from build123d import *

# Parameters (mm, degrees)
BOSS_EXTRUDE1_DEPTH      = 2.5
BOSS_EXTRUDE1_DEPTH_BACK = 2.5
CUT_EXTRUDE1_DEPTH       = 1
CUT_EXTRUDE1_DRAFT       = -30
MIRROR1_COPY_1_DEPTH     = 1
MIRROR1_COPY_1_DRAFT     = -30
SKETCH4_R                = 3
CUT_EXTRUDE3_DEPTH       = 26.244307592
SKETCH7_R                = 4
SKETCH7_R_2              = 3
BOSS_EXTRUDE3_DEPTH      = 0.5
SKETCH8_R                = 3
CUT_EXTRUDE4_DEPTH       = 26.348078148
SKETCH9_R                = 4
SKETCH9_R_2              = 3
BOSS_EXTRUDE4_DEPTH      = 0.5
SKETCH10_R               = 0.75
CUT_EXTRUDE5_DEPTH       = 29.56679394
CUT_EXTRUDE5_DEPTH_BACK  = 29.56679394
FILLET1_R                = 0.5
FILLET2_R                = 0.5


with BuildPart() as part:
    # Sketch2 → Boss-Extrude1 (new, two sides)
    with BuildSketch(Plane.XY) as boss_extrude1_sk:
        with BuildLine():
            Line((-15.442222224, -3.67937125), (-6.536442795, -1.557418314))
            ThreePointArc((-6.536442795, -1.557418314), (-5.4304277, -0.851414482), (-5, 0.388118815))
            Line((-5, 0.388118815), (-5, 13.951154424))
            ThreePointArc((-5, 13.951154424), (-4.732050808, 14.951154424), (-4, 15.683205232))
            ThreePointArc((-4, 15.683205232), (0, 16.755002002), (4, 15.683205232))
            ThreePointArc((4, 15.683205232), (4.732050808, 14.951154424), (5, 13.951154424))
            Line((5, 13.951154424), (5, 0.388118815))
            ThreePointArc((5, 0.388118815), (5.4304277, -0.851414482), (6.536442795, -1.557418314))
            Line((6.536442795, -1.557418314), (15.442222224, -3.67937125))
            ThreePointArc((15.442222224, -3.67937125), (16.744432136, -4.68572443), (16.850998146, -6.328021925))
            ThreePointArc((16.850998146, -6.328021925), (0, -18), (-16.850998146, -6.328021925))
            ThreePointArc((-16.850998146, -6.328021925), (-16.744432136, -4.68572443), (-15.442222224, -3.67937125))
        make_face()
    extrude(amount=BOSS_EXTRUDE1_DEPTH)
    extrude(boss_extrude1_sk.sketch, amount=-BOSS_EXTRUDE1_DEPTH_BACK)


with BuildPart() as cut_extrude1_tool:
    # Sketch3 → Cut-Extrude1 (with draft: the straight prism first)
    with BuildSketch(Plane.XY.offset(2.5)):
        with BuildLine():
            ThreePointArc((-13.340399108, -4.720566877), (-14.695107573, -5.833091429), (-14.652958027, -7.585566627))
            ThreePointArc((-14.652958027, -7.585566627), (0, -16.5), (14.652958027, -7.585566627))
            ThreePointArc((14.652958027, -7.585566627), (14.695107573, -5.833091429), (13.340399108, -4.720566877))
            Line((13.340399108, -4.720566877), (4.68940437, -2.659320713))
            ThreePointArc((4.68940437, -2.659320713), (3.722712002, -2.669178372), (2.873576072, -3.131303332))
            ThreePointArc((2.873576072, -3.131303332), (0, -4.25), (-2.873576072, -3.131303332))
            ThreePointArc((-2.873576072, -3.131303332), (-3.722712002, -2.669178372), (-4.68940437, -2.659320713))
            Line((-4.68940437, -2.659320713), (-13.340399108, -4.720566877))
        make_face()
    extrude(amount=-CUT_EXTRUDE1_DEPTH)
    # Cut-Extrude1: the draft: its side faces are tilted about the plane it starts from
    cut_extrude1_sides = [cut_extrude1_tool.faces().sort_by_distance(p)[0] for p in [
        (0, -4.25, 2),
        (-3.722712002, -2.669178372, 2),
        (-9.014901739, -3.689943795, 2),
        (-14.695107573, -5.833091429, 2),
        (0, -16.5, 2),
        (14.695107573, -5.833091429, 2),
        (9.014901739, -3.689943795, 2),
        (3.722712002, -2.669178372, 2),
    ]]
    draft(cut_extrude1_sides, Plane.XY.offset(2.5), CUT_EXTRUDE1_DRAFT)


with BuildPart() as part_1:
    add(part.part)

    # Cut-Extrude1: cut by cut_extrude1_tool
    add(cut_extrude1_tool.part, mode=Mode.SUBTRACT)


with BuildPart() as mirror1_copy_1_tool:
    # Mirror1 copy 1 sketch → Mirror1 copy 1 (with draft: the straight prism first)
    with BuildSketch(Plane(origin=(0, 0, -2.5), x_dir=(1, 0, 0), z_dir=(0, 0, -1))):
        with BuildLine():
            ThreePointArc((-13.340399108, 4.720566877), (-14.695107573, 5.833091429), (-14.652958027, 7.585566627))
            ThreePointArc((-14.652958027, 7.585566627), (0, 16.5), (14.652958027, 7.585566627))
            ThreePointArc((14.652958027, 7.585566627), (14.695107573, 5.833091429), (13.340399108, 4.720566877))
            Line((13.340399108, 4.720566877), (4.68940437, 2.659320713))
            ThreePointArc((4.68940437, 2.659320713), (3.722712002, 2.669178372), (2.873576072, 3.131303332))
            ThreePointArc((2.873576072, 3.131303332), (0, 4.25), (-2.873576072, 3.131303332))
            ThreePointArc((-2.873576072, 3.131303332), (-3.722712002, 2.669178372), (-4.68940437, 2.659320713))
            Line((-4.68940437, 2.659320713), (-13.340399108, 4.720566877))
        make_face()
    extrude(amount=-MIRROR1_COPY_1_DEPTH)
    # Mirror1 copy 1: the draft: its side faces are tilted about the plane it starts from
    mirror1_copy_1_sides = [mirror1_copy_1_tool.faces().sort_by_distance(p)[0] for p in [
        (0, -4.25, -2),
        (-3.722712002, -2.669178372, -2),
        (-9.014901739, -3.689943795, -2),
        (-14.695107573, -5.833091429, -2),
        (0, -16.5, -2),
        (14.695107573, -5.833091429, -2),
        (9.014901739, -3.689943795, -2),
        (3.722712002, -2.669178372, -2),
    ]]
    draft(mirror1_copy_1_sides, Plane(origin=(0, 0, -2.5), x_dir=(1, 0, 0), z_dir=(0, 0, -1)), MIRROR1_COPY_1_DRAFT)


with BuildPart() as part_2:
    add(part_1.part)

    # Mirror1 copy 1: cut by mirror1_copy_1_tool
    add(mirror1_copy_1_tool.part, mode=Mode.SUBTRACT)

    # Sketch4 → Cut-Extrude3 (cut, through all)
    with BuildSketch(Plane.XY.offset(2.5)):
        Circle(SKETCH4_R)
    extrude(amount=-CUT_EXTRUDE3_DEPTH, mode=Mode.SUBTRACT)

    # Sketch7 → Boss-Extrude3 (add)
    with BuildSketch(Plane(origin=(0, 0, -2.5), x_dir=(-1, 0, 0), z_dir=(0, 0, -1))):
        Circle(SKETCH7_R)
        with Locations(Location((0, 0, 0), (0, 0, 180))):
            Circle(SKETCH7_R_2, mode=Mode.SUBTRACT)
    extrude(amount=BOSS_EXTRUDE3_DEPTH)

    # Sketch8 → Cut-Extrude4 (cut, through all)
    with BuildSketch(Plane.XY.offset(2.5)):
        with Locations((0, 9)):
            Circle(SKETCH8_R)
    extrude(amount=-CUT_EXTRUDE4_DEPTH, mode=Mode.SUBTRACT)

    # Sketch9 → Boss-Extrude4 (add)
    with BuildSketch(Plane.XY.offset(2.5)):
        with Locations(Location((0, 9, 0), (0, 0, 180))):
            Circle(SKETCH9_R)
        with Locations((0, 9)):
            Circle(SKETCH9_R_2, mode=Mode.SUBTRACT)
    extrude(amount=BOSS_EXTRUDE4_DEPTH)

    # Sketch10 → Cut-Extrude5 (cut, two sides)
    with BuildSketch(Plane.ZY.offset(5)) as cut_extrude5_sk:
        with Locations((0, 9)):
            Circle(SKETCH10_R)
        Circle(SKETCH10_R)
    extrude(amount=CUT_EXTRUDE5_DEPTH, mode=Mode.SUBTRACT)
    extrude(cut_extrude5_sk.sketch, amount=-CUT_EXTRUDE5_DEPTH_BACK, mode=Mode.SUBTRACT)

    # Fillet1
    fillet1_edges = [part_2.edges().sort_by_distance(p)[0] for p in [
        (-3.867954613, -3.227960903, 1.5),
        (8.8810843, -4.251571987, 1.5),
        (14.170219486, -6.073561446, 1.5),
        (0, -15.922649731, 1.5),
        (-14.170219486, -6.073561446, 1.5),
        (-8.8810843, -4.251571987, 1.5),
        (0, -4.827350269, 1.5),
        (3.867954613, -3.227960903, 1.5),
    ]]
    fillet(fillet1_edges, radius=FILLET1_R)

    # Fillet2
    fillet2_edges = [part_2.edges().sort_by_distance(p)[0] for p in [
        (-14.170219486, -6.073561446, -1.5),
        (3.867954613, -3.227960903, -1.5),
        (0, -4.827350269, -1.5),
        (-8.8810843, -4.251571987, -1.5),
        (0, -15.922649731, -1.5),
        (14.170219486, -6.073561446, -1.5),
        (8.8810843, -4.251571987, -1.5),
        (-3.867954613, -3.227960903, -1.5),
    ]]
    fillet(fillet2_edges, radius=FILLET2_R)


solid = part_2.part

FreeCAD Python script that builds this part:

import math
import FreeCAD as App
import Part
import Sketcher
from FreeCAD import Vector
Q = App.Units.Quantity


def edges_at(feature, points):
    """Names of the edges that pass closest to the given points."""
    edges = feature.Shape.Edges
    near = lambda p: min(range(len(edges)), key=lambda i: edges[i].distToShape(Part.Vertex(*p))[0])
    return sorted({f"Edge{near(p) + 1}" for p in points})


def faces_at(feature, points):
    """Names of the faces that lie closest to the given points."""
    faces = feature.Shape.Faces
    near = lambda p: min(range(len(faces)), key=lambda i: faces[i].distToShape(Part.Vertex(*p))[0])
    return sorted({f"Face{near(p) + 1}" for p in points})

doc = App.newDocument("Part")
body = doc.addObject("PartDesign::Body", "Body")

# Sketch on XY plane
sketch1 = body.newObject("Sketcher::SketchObject", "Sketch")
sketch1.AttachmentSupport = (doc.getObject("XY_Plane"), [""])
sketch1.MapMode = "FlatFace"
sketch1.addGeometry(Part.LineSegment(Vector(-6.5, -1.6, 0), Vector(-15.4, -3.7, 0)), False)
sketch1.addGeometry(Part.ArcOfCircle(Part.Circle(Vector(-15, -5.6, 0), Vector(0, 0, 1), 2), math.radians(103), math.radians(201)), False)
sketch1.addGeometry(Part.ArcOfCircle(Part.Circle(Vector(0, 0, 0), Vector(0, 0, 1), 18), math.radians(-159), math.radians(-21)), False)
sketch1.addGeometry(Part.ArcOfCircle(Part.Circle(Vector(15, -5.6, 0), Vector(0, 0, 1), 2), math.radians(-21), math.radians(77)), False)
sketch1.addGeometry(Part.LineSegment(Vector(15.4, -3.7, 0), Vector(6.5, -1.6, 0)), False)
sketch1.addGeometry(Part.ArcOfCircle(Part.Circle(Vector(7, 0.4, 0), Vector(0, 0, 1), 2), math.radians(-180), math.radians(-103)), False)
sketch1.addGeometry(Part.LineSegment(Vector(5, 0.4, 0), Vector(5, 14, 0)), False)
sketch1.addGeometry(Part.ArcOfCircle(Part.Circle(Vector(3, 14, 0), Vector(0, 0, 1), 2), math.radians(0), math.radians(60)), False)
sketch1.addGeometry(Part.ArcOfCircle(Part.Circle(Vector(0, 8.8, 0), Vector(0, 0, 1), 8), math.radians(60), math.radians(120)), False)
sketch1.addGeometry(Part.ArcOfCircle(Part.Circle(Vector(-3, 14, 0), Vector(0, 0, 1), 2), math.radians(120), math.radians(180)), False)
sketch1.addGeometry(Part.LineSegment(Vector(-5, 14, 0), Vector(-5, 0.4, 0)), False)
sketch1.addGeometry(Part.ArcOfCircle(Part.Circle(Vector(-7, 0.4, 0), Vector(0, 0, 1), 2), math.radians(-77), math.radians(0)), False)
sketch1.addConstraint(Sketcher.Constraint("Tangent", 0, 2, 1, 1))
sketch1.addConstraint(Sketcher.Constraint("Tangent", 1, 2, 2, 1))
sketch1.addConstraint(Sketcher.Constraint("Tangent", 2, 2, 3, 1))
sketch1.addConstraint(Sketcher.Constraint("Tangent", 3, 2, 4, 1))
sketch1.addConstraint(Sketcher.Constraint("Tangent", 4, 2, 5, 2))
sketch1.addConstraint(Sketcher.Constraint("Tangent", 5, 1, 6, 1))
sketch1.addConstraint(Sketcher.Constraint("Tangent", 6, 2, 7, 1))
sketch1.addConstraint(Sketcher.Constraint("Tangent", 7, 2, 8, 1))
sketch1.addConstraint(Sketcher.Constraint("Tangent", 8, 2, 9, 1))
sketch1.addConstraint(Sketcher.Constraint("Tangent", 9, 2, 10, 1))
sketch1.addConstraint(Sketcher.Constraint("Tangent", 10, 2, 11, 2))
sketch1.addConstraint(Sketcher.Constraint("Tangent", 11, 1, 0, 1))
sketch1.addConstraint(Sketcher.Constraint("Vertical", 6))
sketch1.addConstraint(Sketcher.Constraint("Vertical", 10))
sketch1.addConstraint(Sketcher.Constraint("Coincident", 2, 3, -1, 1))
sketch1.addConstraint(Sketcher.Constraint("Equal", 1, 3))
sketch1.addConstraint(Sketcher.Constraint("Equal", 3, 5))
sketch1.addConstraint(Sketcher.Constraint("Equal", 5, 7))
sketch1.addConstraint(Sketcher.Constraint("Equal", 7, 9))
sketch1.addConstraint(Sketcher.Constraint("Equal", 9, 11))
sketch1.addConstraint(Sketcher.Constraint("Symmetric", 7, 3, 9, 3, -2))
sketch1.addConstraint(Sketcher.Constraint("Symmetric", 0, 2, 3, 2, -2))
sketch1.addConstraint(Sketcher.Constraint("Radius", 1, Q("2 mm")))
sketch1.addConstraint(Sketcher.Constraint("Radius", 2, Q("18 mm")))
sketch1.addConstraint(Sketcher.Constraint("Radius", 8, Q("8 mm")))
sketch1.addConstraint(Sketcher.Constraint("DistanceX", -1, 1, 5, 3, Q("7 mm")))
sketch1.addConstraint(Sketcher.Constraint("DistanceX", 1, 2, -1, 1, Q("16.850998 mm")))
sketch1.addConstraint(Sketcher.Constraint("DistanceY", 6, 1, 6, 2, Q("13.563036 mm")))
sketch1.addConstraint(Sketcher.Constraint("DistanceY", -1, 1, 5, 3, Q("0.388119 mm")))
pad1 = body.newObject("PartDesign::Pad", "Pad")
pad1.Profile = sketch1
pad1.Type = "TwoLengths"
pad1.Length = 2.5
pad1.Length2 = 2.5
body2 = doc.addObject("PartDesign::Body", "Body001")

# Sketch on XY plane
sketch2 = body2.newObject("Sketcher::SketchObject", "Sketch001")
sketch2.AttachmentSupport = (doc.getObject("XY_Plane001"), [""])
sketch2.MapMode = "FlatFace"
sketch2.AttachmentOffset = App.Placement(Vector(0, 0, 2.5), App.Rotation())
sketch2.addGeometry(Part.ArcOfCircle(Part.Circle(Vector(-12.876842, -6.666104, 0), Vector(0, 0, 1), 2), math.radians(103.401808), math.radians(207.369771)), False)
sketch2.addGeometry(Part.ArcOfCircle(Part.Circle(Vector(0, 0, 0), Vector(0, 0, 1), 16.5), math.radians(-152.630229), math.radians(-27.369771)), False)
sketch2.addGeometry(Part.ArcOfCircle(Part.Circle(Vector(12.876842, -6.666104, 0), Vector(0, 0, 1), 2), math.radians(-27.369771), math.radians(76.598192)), False)
sketch2.addGeometry(Part.LineSegment(Vector(13.340399, -4.720567, 0), Vector(4.689404, -2.659321, 0)), False)
sketch2.addGeometry(Part.ArcOfCircle(Part.Circle(Vector(4.225847, -4.604858, 0), Vector(0, 0, 1), 2), math.radians(76.598192), math.radians(132.542394)), False)
sketch2.addGeometry(Part.ArcOfCircle(Part.Circle(Vector(0, 0, 0), Vector(0, 0, 1), 4.25), math.radians(-132.542394), math.radians(-47.457606)), False)
sketch2.addGeometry(Part.ArcOfCircle(Part.Circle(Vector(-4.225847, -4.604858, 0), Vector(0, 0, 1), 2), math.radians(47.457606), math.radians(103.401808)), False)
sketch2.addGeometry(Part.LineSegment(Vector(-4.689404, -2.659321, 0), Vector(-13.340399, -4.720567, 0)), False)
sketch2.addConstraint(Sketcher.Constraint("Coincident", 0, 2, 1, 1))
sketch2.addConstraint(Sketcher.Constraint("Coincident", 1, 2, 2, 1))
sketch2.addConstraint(Sketcher.Constraint("Coincident", 2, 2, 3, 1))
sketch2.addConstraint(Sketcher.Constraint("Coincident", 3, 2, 4, 1))
sketch2.addConstraint(Sketcher.Constraint("Coincident", 4, 2, 5, 2))
sketch2.addConstraint(Sketcher.Constraint("Coincident", 5, 1, 6, 1))
sketch2.addConstraint(Sketcher.Constraint("Coincident", 6, 2, 7, 1))
sketch2.addConstraint(Sketcher.Constraint("Coincident", 7, 2, 0, 1))
sketch2.addConstraint(Sketcher.Constraint("Coincident", 1, 3, -1, 1))
sketch2.addConstraint(Sketcher.Constraint("Coincident", 5, 3, -1, 1))
sketch2.addConstraint(Sketcher.Constraint("Radius", 0, Q("2 mm")))
sketch2.addConstraint(Sketcher.Constraint("Radius", 2, Q("2 mm")))
sketch2.addConstraint(Sketcher.Constraint("Radius", 4, Q("2 mm")))
sketch2.addConstraint(Sketcher.Constraint("Radius", 6, Q("2 mm")))
sketch2.addConstraint(Sketcher.Constraint("Radius", 1, Q("16.5 mm")))
sketch2.addConstraint(Sketcher.Constraint("Radius", 5, Q("4.25 mm")))
sketch2.addConstraint(Sketcher.Constraint("DistanceY", 1, 2, 2, 2, Q("2.865 mm")))
sketch2.addConstraint(Sketcher.Constraint("DistanceY", 0, 2, 7, 2, Q("2.865 mm")))
sketch2.addConstraint(Sketcher.Constraint("DistanceX", -1, 1, 2, 2, Q("13.340399 mm")))
sketch2.addConstraint(Sketcher.Constraint("DistanceX", 7, 2, -1, 1, Q("13.340399 mm")))
sketch2.addConstraint(Sketcher.Constraint("Distance", 3, Q("8.893168 mm")))
sketch2.addConstraint(Sketcher.Constraint("Distance", 7, Q("8.893168 mm")))
sketch2.addConstraint(Sketcher.Constraint("DistanceX", 0, 3, -1, 1, Q("12.876842 mm")))
sketch2.addConstraint(Sketcher.Constraint("DistanceX", -1, 1, 2, 3, Q("12.876842 mm")))
sketch2.addConstraint(Sketcher.Constraint("DistanceY", 3, 2, -1, 1, Q("2.659321 mm")))
sketch2.addConstraint(Sketcher.Constraint("DistanceY", 6, 2, -1, 1, Q("2.659321 mm")))
sketch2.addConstraint(Sketcher.Constraint("DistanceX", 4, 2, 3, 2, Q("1.815828 mm")))
sketch2.addConstraint(Sketcher.Constraint("DistanceX", 6, 3, 5, 1, Q("1.352271 mm")))
pad2 = body2.newObject("PartDesign::Pad", "Pad001")
pad2.Profile = sketch2
pad2.Length = 1
pad2.Reversed = True
doc.recompute()

datumplane = body2.newObject("PartDesign::Plane", "DatumPlane")
datumplane.AttachmentSupport = (doc.getObject("XY_Plane001"), [""])
datumplane.MapMode = "FlatFace"
datumplane.AttachmentOffset = App.Placement(Vector(0, 0, 2.5), App.Rotation())
draft = body2.newObject("PartDesign::Draft", "Draft")
draft.Base = (pad2, faces_at(pad2, [
    (0, -4.25, 2),
    (-3.723, -2.669, 2),
    (-9.015, -3.69, 2),
    (-14.695, -5.833, 2),
    (0, -16.5, 2),
    (14.695, -5.833, 2),
    (9.015, -3.69, 2),
    (3.723, -2.669, 2),
]))
draft.NeutralPlane = (datumplane, [""])
draft.Angle = 30
draft.Reversed = True
doc.recompute()

boolean = body.newObject("PartDesign::Boolean", "Boolean")
boolean.Type = "Cut"
boolean.addObjects([body2])
body3 = doc.addObject("PartDesign::Body", "Body002")

# Sketch on XY plane
sketch3 = body3.newObject("Sketcher::SketchObject", "Sketch002")
sketch3.AttachmentSupport = (doc.getObject("XY_Plane002"), [""])
sketch3.MapMode = "FlatFace"
sketch3.AttachmentOffset = App.Placement(Vector(0, 0, -2.5), App.Rotation())
sketch3.addGeometry(Part.ArcOfCircle(Part.Circle(Vector(-12.876842, -6.666104, 0), Vector(0, 0, 1), 2), math.radians(103.401808), math.radians(207.369771)), False)
sketch3.addGeometry(Part.LineSegment(Vector(-13.340399, -4.720567, 0), Vector(-4.689404, -2.659321, 0)), False)
sketch3.addGeometry(Part.ArcOfCircle(Part.Circle(Vector(-4.225847, -4.604858, 0), Vector(0, 0, 1), 2), math.radians(47.457606), math.radians(103.401808)), False)
sketch3.addGeometry(Part.ArcOfCircle(Part.Circle(Vector(0, 0, 0), Vector(0, 0, 1), 4.25), math.radians(-132.542394), math.radians(-47.457606)), False)
sketch3.addGeometry(Part.ArcOfCircle(Part.Circle(Vector(4.225847, -4.604858, 0), Vector(0, 0, 1), 2), math.radians(76.598192), math.radians(132.542394)), False)
sketch3.addGeometry(Part.LineSegment(Vector(4.689404, -2.659321, 0), Vector(13.340399, -4.720567, 0)), False)
sketch3.addGeometry(Part.ArcOfCircle(Part.Circle(Vector(12.876842, -6.666104, 0), Vector(0, 0, 1), 2), math.radians(-27.369771), math.radians(76.598192)), False)
sketch3.addGeometry(Part.ArcOfCircle(Part.Circle(Vector(0, 0, 0), Vector(0, 0, 1), 16.5), math.radians(-152.630229), math.radians(-27.369771)), False)
sketch3.addConstraint(Sketcher.Constraint("Coincident", 0, 1, 1, 1))
sketch3.addConstraint(Sketcher.Constraint("Coincident", 1, 2, 2, 2))
sketch3.addConstraint(Sketcher.Constraint("Coincident", 2, 1, 3, 1))
sketch3.addConstraint(Sketcher.Constraint("Coincident", 3, 2, 4, 2))
sketch3.addConstraint(Sketcher.Constraint("Coincident", 4, 1, 5, 1))
sketch3.addConstraint(Sketcher.Constraint("Coincident", 5, 2, 6, 2))
sketch3.addConstraint(Sketcher.Constraint("Coincident", 6, 1, 7, 2))
sketch3.addConstraint(Sketcher.Constraint("Coincident", 7, 1, 0, 2))
sketch3.addConstraint(Sketcher.Constraint("Coincident", 3, 3, -1, 1))
sketch3.addConstraint(Sketcher.Constraint("Coincident", 7, 3, -1, 1))
sketch3.addConstraint(Sketcher.Constraint("Radius", 0, Q("2 mm")))
sketch3.addConstraint(Sketcher.Constraint("Radius", 2, Q("2 mm")))
sketch3.addConstraint(Sketcher.Constraint("Radius", 4, Q("2 mm")))
sketch3.addConstraint(Sketcher.Constraint("Radius", 6, Q("2 mm")))
sketch3.addConstraint(Sketcher.Constraint("Radius", 7, Q("16.5 mm")))
sketch3.addConstraint(Sketcher.Constraint("Radius", 3, Q("4.25 mm")))
sketch3.addConstraint(Sketcher.Constraint("DistanceY", 6, 1, 5, 2, Q("2.865 mm")))
sketch3.addConstraint(Sketcher.Constraint("DistanceY", 7, 1, 0, 1, Q("2.865 mm")))
sketch3.addConstraint(Sketcher.Constraint("DistanceX", 0, 1, -1, 1, Q("13.340399 mm")))
sketch3.addConstraint(Sketcher.Constraint("DistanceX", -1, 1, 5, 2, Q("13.340399 mm")))
sketch3.addConstraint(Sketcher.Constraint("Distance", 1, Q("8.893168 mm")))
sketch3.addConstraint(Sketcher.Constraint("Distance", 5, Q("8.893168 mm")))
sketch3.addConstraint(Sketcher.Constraint("DistanceX", 0, 3, -1, 1, Q("12.876842 mm")))
sketch3.addConstraint(Sketcher.Constraint("DistanceX", -1, 1, 6, 3, Q("12.876842 mm")))
sketch3.addConstraint(Sketcher.Constraint("DistanceY", 1, 2, -1, 1, Q("2.659321 mm")))
sketch3.addConstraint(Sketcher.Constraint("DistanceY", 4, 1, -1, 1, Q("2.659321 mm")))
sketch3.addConstraint(Sketcher.Constraint("DistanceX", 1, 2, 2, 1, Q("1.815828 mm")))
sketch3.addConstraint(Sketcher.Constraint("DistanceX", 3, 2, 4, 3, Q("1.352271 mm")))
pad3 = body3.newObject("PartDesign::Pad", "Pad002")
pad3.Profile = sketch3
pad3.Length = 1
doc.recompute()

datumplane2 = body3.newObject("PartDesign::Plane", "DatumPlane001")
datumplane2.AttachmentSupport = (doc.getObject("XY_Plane002"), [""])
datumplane2.MapMode = "FlatFace"
datumplane2.AttachmentOffset = App.Placement(Vector(0, 0, -2.5), App.Rotation())
draft2 = body3.newObject("PartDesign::Draft", "Draft001")
draft2.Base = (pad3, faces_at(pad3, [
    (0, -4.25, -2),
    (-3.723, -2.669, -2),
    (-9.015, -3.69, -2),
    (-14.695, -5.833, -2),
    (0, -16.5, -2),
    (14.695, -5.833, -2),
    (9.015, -3.69, -2),
    (3.723, -2.669, -2),
]))
draft2.NeutralPlane = (datumplane2, [""])
draft2.Angle = 30
draft2.Reversed = False
doc.recompute()

boolean2 = body.newObject("PartDesign::Boolean", "Boolean001")
boolean2.Type = "Cut"
boolean2.addObjects([body3])

# Sketch on XY plane
sketch4 = body.newObject("Sketcher::SketchObject", "Sketch003")
sketch4.AttachmentSupport = (doc.getObject("XY_Plane"), [""])
sketch4.MapMode = "FlatFace"
sketch4.AttachmentOffset = App.Placement(Vector(0, 0, 2.5), App.Rotation())
sketch4.addGeometry(Part.Circle(Vector(0, 0, 0), Vector(0, 0, 1), 3), False)
sketch4.addConstraint(Sketcher.Constraint("Coincident", 0, 3, -1, 1))
sketch4.addConstraint(Sketcher.Constraint("Diameter", 0, Q("6 mm")))
pocket1 = body.newObject("PartDesign::Pocket", "Pocket")
pocket1.Profile = sketch4
pocket1.Type = "ThroughAll"

# Sketch on XY plane
sketch5 = body.newObject("Sketcher::SketchObject", "Sketch004")
sketch5.AttachmentSupport = (doc.getObject("XY_Plane"), [""])
sketch5.MapMode = "FlatFace"
sketch5.AttachmentOffset = App.Placement(Vector(0, 0, -2.5), App.Rotation())
sketch5.addGeometry(Part.Circle(Vector(0, 0, 0), Vector(0, 0, 1), 4), False)
sketch5.addGeometry(Part.Circle(Vector(0, 0, 0), Vector(0, 0, 1), 3), False)
sketch5.addConstraint(Sketcher.Constraint("Coincident", 0, 3, -1, 1))
sketch5.addConstraint(Sketcher.Constraint("Coincident", 1, 3, -1, 1))
sketch5.addConstraint(Sketcher.Constraint("Diameter", 0, Q("8 mm")))
sketch5.addConstraint(Sketcher.Constraint("Diameter", 1, Q("6 mm")))
pad4 = body.newObject("PartDesign::Pad", "Pad003")
pad4.Profile = sketch5
pad4.Length = 0.5
pad4.Reversed = True

# Sketch on XY plane
sketch6 = body.newObject("Sketcher::SketchObject", "Sketch005")
sketch6.AttachmentSupport = (doc.getObject("XY_Plane"), [""])
sketch6.MapMode = "FlatFace"
sketch6.AttachmentOffset = App.Placement(Vector(0, 0, 2.5), App.Rotation())
sketch6.addGeometry(Part.Circle(Vector(0, 9, 0), Vector(0, 0, 1), 3), False)
sketch6.addConstraint(Sketcher.Constraint("PointOnObject", 0, 3, -2))
sketch6.addConstraint(Sketcher.Constraint("Diameter", 0, Q("6 mm")))
sketch6.addConstraint(Sketcher.Constraint("DistanceY", -1, 1, 0, 3, Q("9 mm")))
pocket2 = body.newObject("PartDesign::Pocket", "Pocket001")
pocket2.Profile = sketch6
pocket2.Type = "ThroughAll"

# Sketch on XY plane
sketch7 = body.newObject("Sketcher::SketchObject", "Sketch006")
sketch7.AttachmentSupport = (doc.getObject("XY_Plane"), [""])
sketch7.MapMode = "FlatFace"
sketch7.AttachmentOffset = App.Placement(Vector(0, 0, 2.5), App.Rotation())
sketch7.addGeometry(Part.Circle(Vector(0, 9, 0), Vector(0, 0, 1), 4), False)
sketch7.addGeometry(Part.Circle(Vector(0, 9, 0), Vector(0, 0, 1), 3), False)
sketch7.addConstraint(Sketcher.Constraint("Coincident", 1, 3, 0, 3))
sketch7.addConstraint(Sketcher.Constraint("PointOnObject", 0, 3, -2))
sketch7.addConstraint(Sketcher.Constraint("Diameter", 0, Q("8 mm")))
sketch7.addConstraint(Sketcher.Constraint("Diameter", 1, Q("6 mm")))
sketch7.addConstraint(Sketcher.Constraint("DistanceY", -1, 1, 0, 3, Q("9 mm")))
pad5 = body.newObject("PartDesign::Pad", "Pad004")
pad5.Profile = sketch7
pad5.Length = 0.5

# Sketch on YZ plane
sketch8 = body.newObject("Sketcher::SketchObject", "Sketch007")
sketch8.AttachmentSupport = (doc.getObject("YZ_Plane"), [""])
sketch8.MapMode = "FlatFace"
sketch8.AttachmentOffset = App.Placement(Vector(0, 0, -5), App.Rotation())
sketch8.addGeometry(Part.Circle(Vector(9, 0, 0), Vector(0, 0, 1), 0.8), False)
sketch8.addGeometry(Part.Circle(Vector(0, 0, 0), Vector(0, 0, 1), 0.8), False)
sketch8.addConstraint(Sketcher.Constraint("Coincident", 1, 3, -1, 1))
sketch8.addConstraint(Sketcher.Constraint("Equal", 0, 1))
sketch8.addConstraint(Sketcher.Constraint("PointOnObject", 0, 3, -1))
sketch8.addConstraint(Sketcher.Constraint("Diameter", 0, Q("1.5 mm")))
sketch8.addConstraint(Sketcher.Constraint("DistanceX", -1, 1, 0, 3, Q("9 mm")))
pocket3 = body.newObject("PartDesign::Pocket", "Pocket002")
pocket3.Profile = sketch8
pocket3.Type = "ThroughAll"
pocket3.Midplane = True
doc.recompute()

fillet = body.newObject("PartDesign::Fillet", "Fillet")
fillet.Base = (pocket3, edges_at(pocket3, [
    (-3.868, -3.228, 1.5),
    (8.881, -4.252, 1.5),
    (14.17, -6.074, 1.5),
    (0, -15.923, 1.5),
    (-14.17, -6.074, 1.5),
    (-8.881, -4.252, 1.5),
    (0, -4.827, 1.5),
    (3.868, -3.228, 1.5),
]))
fillet.Radius = 0.5
doc.recompute()

fillet2 = body.newObject("PartDesign::Fillet", "Fillet001")
fillet2.Base = (fillet, edges_at(fillet, [
    (-14.17, -6.074, -1.5),
    (3.868, -3.228, -1.5),
    (0, -4.827, -1.5),
    (-8.881, -4.252, -1.5),
    (0, -15.923, -1.5),
    (14.17, -6.074, -1.5),
    (8.881, -4.252, -1.5),
    (-3.868, -3.228, -1.5),
]))
fillet2.Radius = 0.5

doc.recompute()
